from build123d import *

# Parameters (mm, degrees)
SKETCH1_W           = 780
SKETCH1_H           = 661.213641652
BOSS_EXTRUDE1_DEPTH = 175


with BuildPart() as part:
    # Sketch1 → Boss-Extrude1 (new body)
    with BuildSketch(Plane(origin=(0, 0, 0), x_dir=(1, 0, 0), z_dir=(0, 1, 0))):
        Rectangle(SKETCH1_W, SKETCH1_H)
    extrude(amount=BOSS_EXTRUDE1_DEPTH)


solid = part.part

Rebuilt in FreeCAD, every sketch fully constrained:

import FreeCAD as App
import Part
import Sketcher
Q = App.Units.Quantity

doc = App.newDocument("Part")
body = doc.addObject("PartDesign::Body", "Body")

# Sketch on XZ plane
sketch1 = body.newObject("Sketcher::SketchObject", "Sketch")
sketch1.AttachmentSupport = (doc.getObject("XZ_Plane"), [""])
sketch1.MapMode = "FlatFace"
sketch1.addGeometry(Part.LineSegment(App.Vector(-390, -331, 0), App.Vector(-390, 331, 0)), False)
sketch1.addGeometry(Part.LineSegment(App.Vector(-390, 331, 0), App.Vector(390, 331, 0)), False)
sketch1.addGeometry(Part.LineSegment(App.Vector(390, 331, 0), App.Vector(390, -331, 0)), False)
sketch1.addGeometry(Part.LineSegment(App.Vector(390, -331, 0), App.Vector(-390, -331, 0)), False)
sketch1.addConstraint(Sketcher.Constraint("Coincident", 0, 2, 1, 1))
sketch1.addConstraint(Sketcher.Constraint("Coincident", 1, 2, 2, 1))
sketch1.addConstraint(Sketcher.Constraint("Coincident", 2, 2, 3, 1))
sketch1.addConstraint(Sketcher.Constraint("Coincident", 3, 2, 0, 1))
sketch1.addConstraint(Sketcher.Constraint("Vertical", 0))
sketch1.addConstraint(Sketcher.Constraint("Horizontal", 1))
sketch1.addConstraint(Sketcher.Constraint("Vertical", 2))
sketch1.addConstraint(Sketcher.Constraint("Horizontal", 3))
sketch1.addConstraint(Sketcher.Constraint("Symmetric", 0, 2, 2, 2, -1, 1))
sketch1.addConstraint(Sketcher.Constraint("DistanceX", 1, 1, 1, 2, Q("780 mm")))
sketch1.addConstraint(Sketcher.Constraint("DistanceY", 0, 1, 0, 2, Q("661.213642 mm")))
pad1 = body.newObject("PartDesign::Pad", "Pad")
pad1.Profile = sketch1
pad1.Length = 175
pad1.Reversed = True

doc.recompute()
